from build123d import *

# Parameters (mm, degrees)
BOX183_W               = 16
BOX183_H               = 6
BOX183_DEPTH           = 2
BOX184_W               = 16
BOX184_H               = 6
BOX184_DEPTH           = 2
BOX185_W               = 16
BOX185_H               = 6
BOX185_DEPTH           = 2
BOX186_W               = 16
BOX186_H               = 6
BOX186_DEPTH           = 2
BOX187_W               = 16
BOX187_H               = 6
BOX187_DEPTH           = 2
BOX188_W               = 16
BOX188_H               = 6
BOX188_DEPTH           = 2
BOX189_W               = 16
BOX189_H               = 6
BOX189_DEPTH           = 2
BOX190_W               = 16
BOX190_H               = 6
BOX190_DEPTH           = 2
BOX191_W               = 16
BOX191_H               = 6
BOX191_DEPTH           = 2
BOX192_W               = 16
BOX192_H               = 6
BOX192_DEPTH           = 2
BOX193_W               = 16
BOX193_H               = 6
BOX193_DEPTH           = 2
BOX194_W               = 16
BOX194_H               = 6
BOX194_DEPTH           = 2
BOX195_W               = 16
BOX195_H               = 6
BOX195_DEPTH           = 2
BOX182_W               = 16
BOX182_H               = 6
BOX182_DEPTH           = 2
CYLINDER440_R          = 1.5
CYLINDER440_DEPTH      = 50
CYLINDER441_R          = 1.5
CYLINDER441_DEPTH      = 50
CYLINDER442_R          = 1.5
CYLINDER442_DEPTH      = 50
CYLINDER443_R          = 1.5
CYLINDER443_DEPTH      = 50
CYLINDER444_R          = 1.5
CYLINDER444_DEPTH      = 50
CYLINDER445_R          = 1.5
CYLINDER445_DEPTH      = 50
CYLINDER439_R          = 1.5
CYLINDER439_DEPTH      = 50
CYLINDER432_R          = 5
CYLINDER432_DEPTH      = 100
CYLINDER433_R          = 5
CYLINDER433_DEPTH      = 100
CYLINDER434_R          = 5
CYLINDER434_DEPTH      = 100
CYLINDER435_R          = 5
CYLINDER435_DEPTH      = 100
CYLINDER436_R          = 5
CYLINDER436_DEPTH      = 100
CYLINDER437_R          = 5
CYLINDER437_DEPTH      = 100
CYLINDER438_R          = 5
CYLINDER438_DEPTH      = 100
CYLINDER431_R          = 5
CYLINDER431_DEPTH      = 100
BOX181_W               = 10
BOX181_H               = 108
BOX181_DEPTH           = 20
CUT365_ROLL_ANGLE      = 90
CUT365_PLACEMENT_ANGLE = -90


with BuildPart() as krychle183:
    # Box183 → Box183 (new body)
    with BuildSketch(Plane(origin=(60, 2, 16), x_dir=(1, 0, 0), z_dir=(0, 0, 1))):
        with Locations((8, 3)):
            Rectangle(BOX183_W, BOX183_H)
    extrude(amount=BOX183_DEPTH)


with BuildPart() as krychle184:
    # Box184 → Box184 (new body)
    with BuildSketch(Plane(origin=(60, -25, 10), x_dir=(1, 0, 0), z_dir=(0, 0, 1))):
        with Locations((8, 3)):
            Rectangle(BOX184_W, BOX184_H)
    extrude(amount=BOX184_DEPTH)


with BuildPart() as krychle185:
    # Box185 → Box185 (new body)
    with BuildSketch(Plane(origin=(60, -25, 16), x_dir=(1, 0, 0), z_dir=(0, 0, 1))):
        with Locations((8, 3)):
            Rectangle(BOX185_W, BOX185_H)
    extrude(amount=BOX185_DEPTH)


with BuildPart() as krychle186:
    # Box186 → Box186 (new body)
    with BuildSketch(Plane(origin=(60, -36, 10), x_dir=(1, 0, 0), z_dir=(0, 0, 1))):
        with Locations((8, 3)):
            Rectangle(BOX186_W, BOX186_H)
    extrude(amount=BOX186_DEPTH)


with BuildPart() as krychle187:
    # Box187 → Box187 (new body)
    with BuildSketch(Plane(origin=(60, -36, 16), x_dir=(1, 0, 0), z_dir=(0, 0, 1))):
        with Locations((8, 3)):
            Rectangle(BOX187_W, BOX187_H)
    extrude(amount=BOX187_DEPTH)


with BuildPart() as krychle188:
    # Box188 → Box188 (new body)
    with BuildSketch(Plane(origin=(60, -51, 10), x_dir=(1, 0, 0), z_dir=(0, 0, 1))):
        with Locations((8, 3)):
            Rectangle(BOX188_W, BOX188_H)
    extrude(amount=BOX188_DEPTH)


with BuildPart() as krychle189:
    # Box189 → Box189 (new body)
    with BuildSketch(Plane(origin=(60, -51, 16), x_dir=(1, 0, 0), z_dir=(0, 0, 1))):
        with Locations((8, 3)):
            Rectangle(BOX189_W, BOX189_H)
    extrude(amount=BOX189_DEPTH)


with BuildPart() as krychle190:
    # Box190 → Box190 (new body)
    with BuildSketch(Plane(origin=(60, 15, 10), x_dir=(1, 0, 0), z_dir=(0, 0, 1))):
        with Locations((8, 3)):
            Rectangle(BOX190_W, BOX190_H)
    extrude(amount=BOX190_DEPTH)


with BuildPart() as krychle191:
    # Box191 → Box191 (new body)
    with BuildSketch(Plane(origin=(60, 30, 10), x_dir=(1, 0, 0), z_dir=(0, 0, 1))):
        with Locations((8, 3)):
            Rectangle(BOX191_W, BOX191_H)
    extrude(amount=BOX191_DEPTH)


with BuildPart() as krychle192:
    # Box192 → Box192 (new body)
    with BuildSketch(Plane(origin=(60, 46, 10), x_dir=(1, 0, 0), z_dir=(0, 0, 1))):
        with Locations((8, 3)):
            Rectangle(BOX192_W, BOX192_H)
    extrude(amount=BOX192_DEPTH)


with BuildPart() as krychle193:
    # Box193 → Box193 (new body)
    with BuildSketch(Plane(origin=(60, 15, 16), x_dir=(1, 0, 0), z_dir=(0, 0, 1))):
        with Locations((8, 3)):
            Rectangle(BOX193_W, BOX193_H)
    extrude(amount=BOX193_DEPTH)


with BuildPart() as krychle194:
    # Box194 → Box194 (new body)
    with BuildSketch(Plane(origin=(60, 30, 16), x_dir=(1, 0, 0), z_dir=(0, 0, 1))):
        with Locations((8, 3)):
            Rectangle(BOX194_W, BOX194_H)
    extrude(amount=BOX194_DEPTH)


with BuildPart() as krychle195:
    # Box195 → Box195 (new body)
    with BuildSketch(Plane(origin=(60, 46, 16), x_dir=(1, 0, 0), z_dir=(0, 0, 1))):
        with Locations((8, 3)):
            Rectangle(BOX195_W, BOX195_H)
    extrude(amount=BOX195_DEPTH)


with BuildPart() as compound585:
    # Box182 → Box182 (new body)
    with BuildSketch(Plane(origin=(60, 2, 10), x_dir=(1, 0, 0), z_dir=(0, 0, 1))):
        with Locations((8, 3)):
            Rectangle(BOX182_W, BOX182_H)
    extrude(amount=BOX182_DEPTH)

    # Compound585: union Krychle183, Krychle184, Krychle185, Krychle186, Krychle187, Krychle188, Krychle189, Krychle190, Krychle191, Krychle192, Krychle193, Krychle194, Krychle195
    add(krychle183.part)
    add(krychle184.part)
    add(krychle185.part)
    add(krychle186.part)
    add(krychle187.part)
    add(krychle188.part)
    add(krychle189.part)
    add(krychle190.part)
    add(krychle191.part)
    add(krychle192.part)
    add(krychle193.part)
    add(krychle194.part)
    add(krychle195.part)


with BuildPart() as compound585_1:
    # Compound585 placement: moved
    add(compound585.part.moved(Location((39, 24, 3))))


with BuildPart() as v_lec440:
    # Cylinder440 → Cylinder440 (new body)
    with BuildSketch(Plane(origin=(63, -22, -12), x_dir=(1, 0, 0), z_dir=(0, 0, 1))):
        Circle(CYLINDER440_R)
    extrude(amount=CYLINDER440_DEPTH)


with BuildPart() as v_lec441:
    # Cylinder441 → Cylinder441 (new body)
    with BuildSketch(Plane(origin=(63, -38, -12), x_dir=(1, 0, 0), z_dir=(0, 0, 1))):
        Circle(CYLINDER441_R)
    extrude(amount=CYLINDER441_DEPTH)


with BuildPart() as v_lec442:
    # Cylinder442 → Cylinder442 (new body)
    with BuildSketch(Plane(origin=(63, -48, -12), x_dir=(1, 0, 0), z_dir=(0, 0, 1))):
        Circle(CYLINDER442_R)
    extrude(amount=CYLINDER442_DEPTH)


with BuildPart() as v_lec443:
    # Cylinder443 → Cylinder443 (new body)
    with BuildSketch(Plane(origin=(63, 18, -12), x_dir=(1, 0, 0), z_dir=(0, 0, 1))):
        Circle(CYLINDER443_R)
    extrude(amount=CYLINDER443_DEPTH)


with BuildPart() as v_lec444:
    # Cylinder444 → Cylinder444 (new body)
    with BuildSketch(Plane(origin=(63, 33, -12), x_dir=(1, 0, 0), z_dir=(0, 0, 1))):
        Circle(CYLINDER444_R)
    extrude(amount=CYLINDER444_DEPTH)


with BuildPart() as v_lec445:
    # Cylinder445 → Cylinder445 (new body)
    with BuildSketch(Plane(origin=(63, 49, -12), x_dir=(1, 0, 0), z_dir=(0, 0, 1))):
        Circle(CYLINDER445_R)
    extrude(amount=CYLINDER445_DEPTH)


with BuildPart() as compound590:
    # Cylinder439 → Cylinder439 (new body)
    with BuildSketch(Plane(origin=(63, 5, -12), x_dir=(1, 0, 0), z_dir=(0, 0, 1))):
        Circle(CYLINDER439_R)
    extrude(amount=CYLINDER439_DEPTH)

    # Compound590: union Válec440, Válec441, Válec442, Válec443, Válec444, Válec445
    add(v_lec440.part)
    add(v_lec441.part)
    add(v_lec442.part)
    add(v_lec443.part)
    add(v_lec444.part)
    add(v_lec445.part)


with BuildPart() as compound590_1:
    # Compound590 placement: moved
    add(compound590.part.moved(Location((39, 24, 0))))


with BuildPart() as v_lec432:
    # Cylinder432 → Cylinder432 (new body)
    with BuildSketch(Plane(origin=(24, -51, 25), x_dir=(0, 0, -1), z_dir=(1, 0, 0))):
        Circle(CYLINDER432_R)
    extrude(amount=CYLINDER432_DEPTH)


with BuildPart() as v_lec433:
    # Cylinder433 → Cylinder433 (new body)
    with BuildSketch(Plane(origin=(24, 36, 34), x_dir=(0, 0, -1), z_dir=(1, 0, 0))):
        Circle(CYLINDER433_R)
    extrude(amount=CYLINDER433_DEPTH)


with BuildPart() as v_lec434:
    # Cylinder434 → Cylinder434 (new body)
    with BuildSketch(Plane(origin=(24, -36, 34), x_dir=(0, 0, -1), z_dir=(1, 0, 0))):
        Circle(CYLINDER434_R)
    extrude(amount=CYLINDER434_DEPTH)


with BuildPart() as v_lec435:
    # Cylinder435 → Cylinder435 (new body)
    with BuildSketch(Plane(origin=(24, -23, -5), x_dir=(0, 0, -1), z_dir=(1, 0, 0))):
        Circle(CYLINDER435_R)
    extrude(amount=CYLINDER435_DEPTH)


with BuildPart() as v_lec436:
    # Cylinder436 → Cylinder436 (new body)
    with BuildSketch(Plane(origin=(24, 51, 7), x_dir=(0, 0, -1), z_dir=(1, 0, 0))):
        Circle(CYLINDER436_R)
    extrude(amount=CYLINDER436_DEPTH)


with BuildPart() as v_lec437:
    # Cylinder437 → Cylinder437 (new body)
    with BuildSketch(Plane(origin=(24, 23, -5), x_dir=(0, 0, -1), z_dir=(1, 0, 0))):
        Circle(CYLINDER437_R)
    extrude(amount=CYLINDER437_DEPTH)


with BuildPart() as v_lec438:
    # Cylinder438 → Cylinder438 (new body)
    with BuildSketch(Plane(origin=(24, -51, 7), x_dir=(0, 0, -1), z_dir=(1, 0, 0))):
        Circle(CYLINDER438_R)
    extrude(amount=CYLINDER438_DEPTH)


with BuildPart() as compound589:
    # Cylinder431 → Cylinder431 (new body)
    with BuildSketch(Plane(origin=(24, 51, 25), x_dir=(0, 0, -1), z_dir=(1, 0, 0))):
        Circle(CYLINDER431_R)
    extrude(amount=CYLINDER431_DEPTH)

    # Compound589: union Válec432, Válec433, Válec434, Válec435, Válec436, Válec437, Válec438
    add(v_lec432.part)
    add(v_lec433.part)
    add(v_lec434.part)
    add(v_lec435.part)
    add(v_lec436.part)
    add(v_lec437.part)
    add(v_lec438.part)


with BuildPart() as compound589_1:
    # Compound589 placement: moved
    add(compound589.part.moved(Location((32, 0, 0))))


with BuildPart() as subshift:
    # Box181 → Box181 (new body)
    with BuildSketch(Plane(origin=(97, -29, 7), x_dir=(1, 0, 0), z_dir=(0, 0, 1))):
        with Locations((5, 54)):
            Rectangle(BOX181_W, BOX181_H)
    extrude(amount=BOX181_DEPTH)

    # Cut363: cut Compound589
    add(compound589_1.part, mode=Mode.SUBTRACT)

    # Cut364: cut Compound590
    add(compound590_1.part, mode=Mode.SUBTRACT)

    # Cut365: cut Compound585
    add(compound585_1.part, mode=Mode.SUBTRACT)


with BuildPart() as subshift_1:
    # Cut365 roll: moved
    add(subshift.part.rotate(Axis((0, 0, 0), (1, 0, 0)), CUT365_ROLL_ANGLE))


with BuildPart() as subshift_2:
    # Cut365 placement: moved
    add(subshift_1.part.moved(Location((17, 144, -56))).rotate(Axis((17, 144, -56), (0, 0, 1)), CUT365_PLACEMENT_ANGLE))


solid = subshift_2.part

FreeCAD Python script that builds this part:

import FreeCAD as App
import Part
import Sketcher
Q = App.Units.Quantity


def add_polygon(sketch, points):
    """Adds a closed chain of lines whose ends are joined by coincident constraints."""
    first, n = sketch.GeometryCount, len(points)
    for a, b in zip(points, points[1:] + points[:1]):
        sketch.addGeometry(Part.LineSegment(App.Vector(*a, 0), App.Vector(*b, 0)), False)
    for i in range(n):
        sketch.addConstraint(Sketcher.Constraint("Coincident", first + i, 2, first + (i + 1) % n, 1))

doc = App.newDocument("Part")
body = doc.addObject("PartDesign::Body", "Body")

# Sketch on XY plane
sketch1 = doc.addObject("Sketcher::SketchObject", "Sketch")
body.addObject(sketch1)
sketch1.AttachmentSupport = (doc.XY_Plane, [""])
sketch1.MapMode = "FlatFace"
sketch1.AttachmentOffset = App.Placement(App.Vector(0, 0, 16), App.Rotation())
add_polygon(sketch1, [(60, 8), (60, 2), (76, 2), (76, 8)])  # lines 0-3
sketch1.addConstraint([
    Sketcher.Constraint("Vertical", 0),
    Sketcher.Constraint("Horizontal", 1),
    Sketcher.Constraint("Vertical", 2),
    Sketcher.Constraint("Horizontal", 3),
    Sketcher.Constraint("DistanceX", 1, 1, 1, 2, Q("16 mm")),
    Sketcher.Constraint("DistanceY", 0, 2, 0, 1, Q("6 mm")),
    Sketcher.Constraint("DistanceX", -1, 1, 0, 2, Q("60 mm")),
    Sketcher.Constraint("DistanceY", -1, 1, 0, 2, Q("2 mm")),
])
pad1 = doc.addObject("PartDesign::Pad", "Pad")
body.addObject(pad1)
pad1.Profile = sketch1
pad1.Length = 2
body2 = doc.addObject("PartDesign::Body", "Body001")

# Sketch on XY plane
sketch2 = doc.addObject("Sketcher::SketchObject", "Sketch001")
body2.addObject(sketch2)
sketch2.AttachmentSupport = (doc.getObject("XY_Plane001"), [""])
sketch2.MapMode = "FlatFace"
sketch2.AttachmentOffset = App.Placement(App.Vector(0, 0, 10), App.Rotation())
add_polygon(sketch2, [(60, -19), (60, -25), (76, -25), (76, -19)])  # lines 0-3
sketch2.addConstraint([
    Sketcher.Constraint("Vertical", 0),
    Sketcher.Constraint("Horizontal", 1),
    Sketcher.Constraint("Vertical", 2),
    Sketcher.Constraint("Horizontal", 3),
    Sketcher.Constraint("DistanceX", 1, 1, 1, 2, Q("16 mm")),
    Sketcher.Constraint("DistanceY", 0, 2, 0, 1, Q("6 mm")),
    Sketcher.Constraint("DistanceX", -1, 1, 0, 2, Q("60 mm")),
    Sketcher.Constraint("DistanceY", 0, 2, -1, 1, Q("25 mm")),
])
pad2 = doc.addObject("PartDesign::Pad", "Pad001")
body2.addObject(pad2)
pad2.Profile = sketch2
pad2.Length = 2
body3 = doc.addObject("PartDesign::Body", "Body002")

# Sketch on XY plane
sketch3 = doc.addObject("Sketcher::SketchObject", "Sketch002")
body3.addObject(sketch3)
sketch3.AttachmentSupport = (doc.getObject("XY_Plane002"), [""])
sketch3.MapMode = "FlatFace"
sketch3.AttachmentOffset = App.Placement(App.Vector(0, 0, 16), App.Rotation())
add_polygon(sketch3, [(60, -19), (60, -25), (76, -25), (76, -19)])  # lines 0-3
sketch3.addConstraint([
    Sketcher.Constraint("Vertical", 0),
    Sketcher.Constraint("Horizontal", 1),
    Sketcher.Constraint("Vertical", 2),
    Sketcher.Constraint("Horizontal", 3),
    Sketcher.Constraint("DistanceX", 1, 1, 1, 2, Q("16 mm")),
    Sketcher.Constraint("DistanceY", 0, 2, 0, 1, Q("6 mm")),
    Sketcher.Constraint("DistanceX", -1, 1, 0, 2, Q("60 mm")),
    Sketcher.Constraint("DistanceY", 0, 2, -1, 1, Q("25 mm")),
])
pad3 = doc.addObject("PartDesign::Pad", "Pad002")
body3.addObject(pad3)
pad3.Profile = sketch3
pad3.Length = 2
body4 = doc.addObject("PartDesign::Body", "Body003")

# Sketch on XY plane
sketch4 = doc.addObject("Sketcher::SketchObject", "Sketch003")
body4.addObject(sketch4)
sketch4.AttachmentSupport = (doc.getObject("XY_Plane003"), [""])
sketch4.MapMode = "FlatFace"
sketch4.AttachmentOffset = App.Placement(App.Vector(0, 0, 10), App.Rotation())
add_polygon(sketch4, [(60, -30), (60, -36), (76, -36), (76, -30)])  # lines 0-3
sketch4.addConstraint([
    Sketcher.Constraint("Vertical", 0),
    Sketcher.Constraint("Horizontal", 1),
    Sketcher.Constraint("Vertical", 2),
    Sketcher.Constraint("Horizontal", 3),
    Sketcher.Constraint("DistanceX", 1, 1, 1, 2, Q("16 mm")),
    Sketcher.Constraint("DistanceY", 0, 2, 0, 1, Q("6 mm")),
    Sketcher.Constraint("DistanceX", -1, 1, 0, 2, Q("60 mm")),
    Sketcher.Constraint("DistanceY", 0, 2, -1, 1, Q("36 mm")),
])
pad4 = doc.addObject("PartDesign::Pad", "Pad003")
body4.addObject(pad4)
pad4.Profile = sketch4
pad4.Length = 2
body5 = doc.addObject("PartDesign::Body", "Body004")

# Sketch on XY plane
sketch5 = doc.addObject("Sketcher::SketchObject", "Sketch004")
body5.addObject(sketch5)
sketch5.AttachmentSupport = (doc.getObject("XY_Plane004"), [""])
sketch5.MapMode = "FlatFace"
sketch5.AttachmentOffset = App.Placement(App.Vector(0, 0, 16), App.Rotation())
add_polygon(sketch5, [(60, -30), (60, -36), (76, -36), (76, -30)])  # lines 0-3
sketch5.addConstraint([
    Sketcher.Constraint("Vertical", 0),
    Sketcher.Constraint("Horizontal", 1),
    Sketcher.Constraint("Vertical", 2),
    Sketcher.Constraint("Horizontal", 3),
    Sketcher.Constraint("DistanceX", 1, 1, 1, 2, Q("16 mm")),
    Sketcher.Constraint("DistanceY", 0, 2, 0, 1, Q("6 mm")),
    Sketcher.Constraint("DistanceX", -1, 1, 0, 2, Q("60 mm")),
    Sketcher.Constraint("DistanceY", 0, 2, -1, 1, Q("36 mm")),
])
pad5 = doc.addObject("PartDesign::Pad", "Pad004")
body5.addObject(pad5)
pad5.Profile = sketch5
pad5.Length = 2
body6 = doc.addObject("PartDesign::Body", "Body005")

# Sketch on XY plane
sketch6 = doc.addObject("Sketcher::SketchObject", "Sketch005")
body6.addObject(sketch6)
sketch6.AttachmentSupport = (doc.getObject("XY_Plane005"), [""])
sketch6.MapMode = "FlatFace"
sketch6.AttachmentOffset = App.Placement(App.Vector(0, 0, 10), App.Rotation())
add_polygon(sketch6, [(60, -45), (60, -51), (76, -51), (76, -45)])  # lines 0-3
sketch6.addConstraint([
    Sketcher.Constraint("Vertical", 0),
    Sketcher.Constraint("Horizontal", 1),
    Sketcher.Constraint("Vertical", 2),
    Sketcher.Constraint("Horizontal", 3),
    Sketcher.Constraint("DistanceX", 1, 1, 1, 2, Q("16 mm")),
    Sketcher.Constraint("DistanceY", 0, 2, 0, 1, Q("6 mm")),
    Sketcher.Constraint("DistanceX", -1, 1, 0, 2, Q("60 mm")),
    Sketcher.Constraint("DistanceY", 0, 2, -1, 1, Q("51 mm")),
])
pad6 = doc.addObject("PartDesign::Pad", "Pad005")
body6.addObject(pad6)
pad6.Profile = sketch6
pad6.Length = 2
body7 = doc.addObject("PartDesign::Body", "Body006")

# Sketch on XY plane
sketch7 = doc.addObject("Sketcher::SketchObject", "Sketch006")
body7.addObject(sketch7)
sketch7.AttachmentSupport = (doc.getObject("XY_Plane006"), [""])
sketch7.MapMode = "FlatFace"
sketch7.AttachmentOffset = App.Placement(App.Vector(0, 0, 16), App.Rotation())
add_polygon(sketch7, [(60, -45), (60, -51), (76, -51), (76, -45)])  # lines 0-3
sketch7.addConstraint([
    Sketcher.Constraint("Vertical", 0),
    Sketcher.Constraint("Horizontal", 1),
    Sketcher.Constraint("Vertical", 2),
    Sketcher.Constraint("Horizontal", 3),
    Sketcher.Constraint("DistanceX", 1, 1, 1, 2, Q("16 mm")),
    Sketcher.Constraint("DistanceY", 0, 2, 0, 1, Q("6 mm")),
    Sketcher.Constraint("DistanceX", -1, 1, 0, 2, Q("60 mm")),
    Sketcher.Constraint("DistanceY", 0, 2, -1, 1, Q("51 mm")),
])
pad7 = doc.addObject("PartDesign::Pad", "Pad006")
body7.addObject(pad7)
pad7.Profile = sketch7
pad7.Length = 2
body8 = doc.addObject("PartDesign::Body", "Body007")

# Sketch on XY plane
sketch8 = doc.addObject("Sketcher::SketchObject", "Sketch007")
body8.addObject(sketch8)
sketch8.AttachmentSupport = (doc.getObject("XY_Plane007"), [""])
sketch8.MapMode = "FlatFace"
sketch8.AttachmentOffset = App.Placement(App.Vector(0, 0, 10), App.Rotation())
add_polygon(sketch8, [(60, 21), (60, 15), (76, 15), (76, 21)])  # lines 0-3
sketch8.addConstraint([
    Sketcher.Constraint("Vertical", 0),
    Sketcher.Constraint("Horizontal", 1),
    Sketcher.Constraint("Vertical", 2),
    Sketcher.Constraint("Horizontal", 3),
    Sketcher.Constraint("DistanceX", 1, 1, 1, 2, Q("16 mm")),
    Sketcher.Constraint("DistanceY", 0, 2, 0, 1, Q("6 mm")),
    Sketcher.Constraint("DistanceX", -1, 1, 0, 2, Q("60 mm")),
    Sketcher.Constraint("DistanceY", -1, 1, 0, 2, Q("15 mm")),
])
pad8 = doc.addObject("PartDesign::Pad", "Pad007")
body8.addObject(pad8)
pad8.Profile = sketch8
pad8.Length = 2
body9 = doc.addObject("PartDesign::Body", "Body008")

# Sketch on XY plane
sketch9 = doc.addObject("Sketcher::SketchObject", "Sketch008")
body9.addObject(sketch9)
sketch9.AttachmentSupport = (doc.getObject("XY_Plane008"), [""])
sketch9.MapMode = "FlatFace"
sketch9.AttachmentOffset = App.Placement(App.Vector(0, 0, 10), App.Rotation())
add_polygon(sketch9, [(60, 36), (60, 30), (76, 30), (76, 36)])  # lines 0-3
sketch9.addConstraint([
    Sketcher.Constraint("Vertical", 0),
    Sketcher.Constraint("Horizontal", 1),
    Sketcher.Constraint("Vertical", 2),
    Sketcher.Constraint("Horizontal", 3),
    Sketcher.Constraint("DistanceX", 1, 1, 1, 2, Q("16 mm")),
    Sketcher.Constraint("DistanceY", 0, 2, 0, 1, Q("6 mm")),
    Sketcher.Constraint("DistanceX", -1, 1, 0, 2, Q("60 mm")),
    Sketcher.Constraint("DistanceY", -1, 1, 0, 2, Q("30 mm")),
])
pad9 = doc.addObject("PartDesign::Pad", "Pad008")
body9.addObject(pad9)
pad9.Profile = sketch9
pad9.Length = 2
body10 = doc.addObject("PartDesign::Body", "Body009")

# Sketch on XY plane
sketch10 = doc.addObject("Sketcher::SketchObject", "Sketch009")
body10.addObject(sketch10)
sketch10.AttachmentSupport = (doc.getObject("XY_Plane009"), [""])
sketch10.MapMode = "FlatFace"
sketch10.AttachmentOffset = App.Placement(App.Vector(0, 0, 10), App.Rotation())
add_polygon(sketch10, [(60, 52), (60, 46), (76, 46), (76, 52)])  # lines 0-3
sketch10.addConstraint([
    Sketcher.Constraint("Vertical", 0),
    Sketcher.Constraint("Horizontal", 1),
    Sketcher.Constraint("Vertical", 2),
    Sketcher.Constraint("Horizontal", 3),
    Sketcher.Constraint("DistanceX", 1, 1, 1, 2, Q("16 mm")),
    Sketcher.Constraint("DistanceY", 0, 2, 0, 1, Q("6 mm")),
    Sketcher.Constraint("DistanceX", -1, 1, 0, 2, Q("60 mm")),
    Sketcher.Constraint("DistanceY", -1, 1, 0, 2, Q("46 mm")),
])
pad10 = doc.addObject("PartDesign::Pad", "Pad009")
body10.addObject(pad10)
pad10.Profile = sketch10
pad10.Length = 2
body11 = doc.addObject("PartDesign::Body", "Body010")

# Sketch on XY plane
sketch11 = doc.addObject("Sketcher::SketchObject", "Sketch010")
body11.addObject(sketch11)
sketch11.AttachmentSupport = (doc.getObject("XY_Plane010"), [""])
sketch11.MapMode = "FlatFace"
sketch11.AttachmentOffset = App.Placement(App.Vector(0, 0, 16), App.Rotation())
add_polygon(sketch11, [(60, 21), (60, 15), (76, 15), (76, 21)])  # lines 0-3
sketch11.addConstraint([
    Sketcher.Constraint("Vertical", 0),
    Sketcher.Constraint("Horizontal", 1),
    Sketcher.Constraint("Vertical", 2),
    Sketcher.Constraint("Horizontal", 3),
    Sketcher.Constraint("DistanceX", 1, 1, 1, 2, Q("16 mm")),
    Sketcher.Constraint("DistanceY", 0, 2, 0, 1, Q("6 mm")),
    Sketcher.Constraint("DistanceX", -1, 1, 0, 2, Q("60 mm")),
    Sketcher.Constraint("DistanceY", -1, 1, 0, 2, Q("15 mm")),
])
pad11 = doc.addObject("PartDesign::Pad", "Pad010")
body11.addObject(pad11)
pad11.Profile = sketch11
pad11.Length = 2
body12 = doc.addObject("PartDesign::Body", "Body011")

# Sketch on XY plane
sketch12 = doc.addObject("Sketcher::SketchObject", "Sketch011")
body12.addObject(sketch12)
sketch12.AttachmentSupport = (doc.getObject("XY_Plane011"), [""])
sketch12.MapMode = "FlatFace"
sketch12.AttachmentOffset = App.Placement(App.Vector(0, 0, 16), App.Rotation())
add_polygon(sketch12, [(60, 36), (60, 30), (76, 30), (76, 36)])  # lines 0-3
sketch12.addConstraint([
    Sketcher.Constraint("Vertical", 0),
    Sketcher.Constraint("Horizontal", 1),
    Sketcher.Constraint("Vertical", 2),
    Sketcher.Constraint("Horizontal", 3),
    Sketcher.Constraint("DistanceX", 1, 1, 1, 2, Q("16 mm")),
    Sketcher.Constraint("DistanceY", 0, 2, 0, 1, Q("6 mm")),
    Sketcher.Constraint("DistanceX", -1, 1, 0, 2, Q("60 mm")),
    Sketcher.Constraint("DistanceY", -1, 1, 0, 2, Q("30 mm")),
])
pad12 = doc.addObject("PartDesign::Pad", "Pad011")
body12.addObject(pad12)
pad12.Profile = sketch12
pad12.Length = 2
body13 = doc.addObject("PartDesign::Body", "Body012")

# Sketch on XY plane
sketch13 = doc.addObject("Sketcher::SketchObject", "Sketch012")
body13.addObject(sketch13)
sketch13.AttachmentSupport = (doc.getObject("XY_Plane012"), [""])
sketch13.MapMode = "FlatFace"
sketch13.AttachmentOffset = App.Placement(App.Vector(0, 0, 16), App.Rotation())
add_polygon(sketch13, [(60, 52), (60, 46), (76, 46), (76, 52)])  # lines 0-3
sketch13.addConstraint([
    Sketcher.Constraint("Vertical", 0),
    Sketcher.Constraint("Horizontal", 1),
    Sketcher.Constraint("Vertical", 2),
    Sketcher.Constraint("Horizontal", 3),
    Sketcher.Constraint("DistanceX", 1, 1, 1, 2, Q("16 mm")),
    Sketcher.Constraint("DistanceY", 0, 2, 0, 1, Q("6 mm")),
    Sketcher.Constraint("DistanceX", -1, 1, 0, 2, Q("60 mm")),
    Sketcher.Constraint("DistanceY", -1, 1, 0, 2, Q("46 mm")),
])
pad13 = doc.addObject("PartDesign::Pad", "Pad012")
body13.addObject(pad13)
pad13.Profile = sketch13
pad13.Length = 2
body14 = doc.addObject("PartDesign::Body", "Body013")
body14.AllowCompound = True

# Sketch on XY plane
sketch14 = doc.addObject("Sketcher::SketchObject", "Sketch013")
body14.addObject(sketch14)
sketch14.AttachmentSupport = (doc.getObject("XY_Plane013"), [""])
sketch14.MapMode = "FlatFace"
sketch14.AttachmentOffset = App.Placement(App.Vector(0, 0, 10), App.Rotation())
add_polygon(sketch14, [(60, 8), (60, 2), (76, 2), (76, 8)])  # lines 0-3
sketch14.addConstraint([
    Sketcher.Constraint("Vertical", 0),
    Sketcher.Constraint("Horizontal", 1),
    Sketcher.Constraint("Vertical", 2),
    Sketcher.Constraint("Horizontal", 3),
    Sketcher.Constraint("DistanceX", 1, 1, 1, 2, Q("16 mm")),
    Sketcher.Constraint("DistanceY", 0, 2, 0, 1, Q("6 mm")),
    Sketcher.Constraint("DistanceX", -1, 1, 0, 2, Q("60 mm")),
    Sketcher.Constraint("DistanceY", -1, 1, 0, 2, Q("2 mm")),
])
pad14 = doc.addObject("PartDesign::Pad", "Pad013")
body14.addObject(pad14)
pad14.Profile = sketch14
pad14.Length = 2
doc.recompute()

boolean = doc.addObject("PartDesign::Boolean", "Boolean")
body14.addObject(boolean)
boolean.Type = "Fuse"
boolean.addObjects([body])
doc.recompute()

boolean2 = doc.addObject("PartDesign::Boolean", "Boolean001")
body14.addObject(boolean2)
boolean2.Type = "Fuse"
boolean2.addObjects([body2])
doc.recompute()

boolean3 = doc.addObject("PartDesign::Boolean", "Boolean002")
body14.addObject(boolean3)
boolean3.Type = "Fuse"
boolean3.addObjects([body3])
doc.recompute()

boolean4 = doc.addObject("PartDesign::Boolean", "Boolean003")
body14.addObject(boolean4)
boolean4.Type = "Fuse"
boolean4.addObjects([body4])
doc.recompute()

boolean5 = doc.addObject("PartDesign::Boolean", "Boolean004")
body14.addObject(boolean5)
boolean5.Type = "Fuse"
boolean5.addObjects([body5])
doc.recompute()

boolean6 = doc.addObject("PartDesign::Boolean", "Boolean005")
body14.addObject(boolean6)
boolean6.Type = "Fuse"
boolean6.addObjects([body6])
doc.recompute()

boolean7 = doc.addObject("PartDesign::Boolean", "Boolean006")
body14.addObject(boolean7)
boolean7.Type = "Fuse"
boolean7.addObjects([body7])
doc.recompute()

boolean8 = doc.addObject("PartDesign::Boolean", "Boolean007")
body14.addObject(boolean8)
boolean8.Type = "Fuse"
boolean8.addObjects([body8])
doc.recompute()

boolean9 = doc.addObject("PartDesign::Boolean", "Boolean008")
body14.addObject(boolean9)
boolean9.Type = "Fuse"
boolean9.addObjects([body9])
doc.recompute()

boolean10 = doc.addObject("PartDesign::Boolean", "Boolean009")
body14.addObject(boolean10)
boolean10.Type = "Fuse"
boolean10.addObjects([body10])
doc.recompute()

boolean11 = doc.addObject("PartDesign::Boolean", "Boolean010")
body14.addObject(boolean11)
boolean11.Type = "Fuse"
boolean11.addObjects([body11])
doc.recompute()

boolean12 = doc.addObject("PartDesign::Boolean", "Boolean011")
body14.addObject(boolean12)
boolean12.Type = "Fuse"
boolean12.addObjects([body12])
doc.recompute()

boolean13 = doc.addObject("PartDesign::Boolean", "Boolean012")
body14.addObject(boolean13)
boolean13.Type = "Fuse"
boolean13.addObjects([body13])
body15 = doc.addObject("PartDesign::Body", "Body014")
body15.AllowCompound = True
doc.recompute()

body14.Placement = App.Placement(App.Vector(39, 24, 3), App.Rotation(App.Vector(0, 0, 1), 0))
boolean14 = doc.addObject("PartDesign::Boolean", "Boolean013")
body15.addObject(boolean14)
boolean14.Type = "Fuse"
boolean14.addObjects([body14])
body16 = doc.addObject("PartDesign::Body", "Body015")

# Sketch on XY plane
sketch15 = doc.addObject("Sketcher::SketchObject", "Sketch014")
body16.addObject(sketch15)
sketch15.AttachmentSupport = (doc.getObject("XY_Plane015"), [""])
sketch15.MapMode = "FlatFace"
sketch15.AttachmentOffset = App.Placement(App.Vector(0, 0, -12), App.Rotation())
sketch15.addGeometry(Part.Circle(App.Vector(63, -22, 0), App.Vector(0, 0, 1), 1.5), False)
sketch15.addConstraint([
    Sketcher.Constraint("Diameter", 0, Q("3 mm")),
    Sketcher.Constraint("DistanceX", -1, 1, 0, 3, Q("63 mm")),
    Sketcher.Constraint("DistanceY", 0, 3, -1, 1, Q("22 mm")),
])
pad15 = doc.addObject("PartDesign::Pad", "Pad014")
body16.addObject(pad15)
pad15.Profile = sketch15
pad15.Length = 50
body17 = doc.addObject("PartDesign::Body", "Body016")

# Sketch on XY plane
sketch16 = doc.addObject("Sketcher::SketchObject", "Sketch015")
body17.addObject(sketch16)
sketch16.AttachmentSupport = (doc.getObject("XY_Plane016"), [""])
sketch16.MapMode = "FlatFace"
sketch16.AttachmentOffset = App.Placement(App.Vector(0, 0, -12), App.Rotation())
sketch16.addGeometry(Part.Circle(App.Vector(63, -38, 0), App.Vector(0, 0, 1), 1.5), False)
sketch16.addConstraint([
    Sketcher.Constraint("Diameter", 0, Q("3 mm")),
    Sketcher.Constraint("DistanceX", -1, 1, 0, 3, Q("63 mm")),
    Sketcher.Constraint("DistanceY", 0, 3, -1, 1, Q("38 mm")),
])
pad16 = doc.addObject("PartDesign::Pad", "Pad015")
body17.addObject(pad16)
pad16.Profile = sketch16
pad16.Length = 50
body18 = doc.addObject("PartDesign::Body", "Body017")

# Sketch on XY plane
sketch17 = doc.addObject("Sketcher::SketchObject", "Sketch016")
body18.addObject(sketch17)
sketch17.AttachmentSupport = (doc.getObject("XY_Plane017"), [""])
sketch17.MapMode = "FlatFace"
sketch17.AttachmentOffset = App.Placement(App.Vector(0, 0, -12), App.Rotation())
sketch17.addGeometry(Part.Circle(App.Vector(63, -48, 0), App.Vector(0, 0, 1), 1.5), False)
sketch17.addConstraint([
    Sketcher.Constraint("Diameter", 0, Q("3 mm")),
    Sketcher.Constraint("DistanceX", -1, 1, 0, 3, Q("63 mm")),
    Sketcher.Constraint("DistanceY", 0, 3, -1, 1, Q("48 mm")),
])
pad17 = doc.addObject("PartDesign::Pad", "Pad016")
body18.addObject(pad17)
pad17.Profile = sketch17
pad17.Length = 50
body19 = doc.addObject("PartDesign::Body", "Body018")

# Sketch on XY plane
sketch18 = doc.addObject("Sketcher::SketchObject", "Sketch017")
body19.addObject(sketch18)
sketch18.AttachmentSupport = (doc.getObject("XY_Plane018"), [""])
sketch18.MapMode = "FlatFace"
sketch18.AttachmentOffset = App.Placement(App.Vector(0, 0, -12), App.Rotation())
sketch18.addGeometry(Part.Circle(App.Vector(63, 18, 0), App.Vector(0, 0, 1), 1.5), False)
sketch18.addConstraint([
    Sketcher.Constraint("Diameter", 0, Q("3 mm")),
    Sketcher.Constraint("DistanceX", -1, 1, 0, 3, Q("63 mm")),
    Sketcher.Constraint("DistanceY", -1, 1, 0, 3, Q("18 mm")),
])
pad18 = doc.addObject("PartDesign::Pad", "Pad017")
body19.addObject(pad18)
pad18.Profile = sketch18
pad18.Length = 50
body20 = doc.addObject("PartDesign::Body", "Body019")

# Sketch on XY plane
sketch19 = doc.addObject("Sketcher::SketchObject", "Sketch018")
body20.addObject(sketch19)
sketch19.AttachmentSupport = (doc.getObject("XY_Plane019"), [""])
sketch19.MapMode = "FlatFace"
sketch19.AttachmentOffset = App.Placement(App.Vector(0, 0, -12), App.Rotation())
sketch19.addGeometry(Part.Circle(App.Vector(63, 33, 0), App.Vector(0, 0, 1), 1.5), False)
sketch19.addConstraint([
    Sketcher.Constraint("Diameter", 0, Q("3 mm")),
    Sketcher.Constraint("DistanceX", -1, 1, 0, 3, Q("63 mm")),
    Sketcher.Constraint("DistanceY", -1, 1, 0, 3, Q("33 mm")),
])
pad19 = doc.addObject("PartDesign::Pad", "Pad018")
body20.addObject(pad19)
pad19.Profile = sketch19
pad19.Length = 50
body21 = doc.addObject("PartDesign::Body", "Body020")

# Sketch on XY plane
sketch20 = doc.addObject("Sketcher::SketchObject", "Sketch019")
body21.addObject(sketch20)
sketch20.AttachmentSupport = (doc.getObject("XY_Plane020"), [""])
sketch20.MapMode = "FlatFace"
sketch20.AttachmentOffset = App.Placement(App.Vector(0, 0, -12), App.Rotation())
sketch20.addGeometry(Part.Circle(App.Vector(63, 49, 0), App.Vector(0, 0, 1), 1.5), False)
sketch20.addConstraint([
    Sketcher.Constraint("Diameter", 0, Q("3 mm")),
    Sketcher.Constraint("DistanceX", -1, 1, 0, 3, Q("63 mm")),
    Sketcher.Constraint("DistanceY", -1, 1, 0, 3, Q("49 mm")),
])
pad20 = doc.addObject("PartDesign::Pad", "Pad019")
body21.addObject(pad20)
pad20.Profile = sketch20
pad20.Length = 50
body22 = doc.addObject("PartDesign::Body", "Body021")
body22.AllowCompound = True

# Sketch on XY plane
sketch21 = doc.addObject("Sketcher::SketchObject", "Sketch020")
body22.addObject(sketch21)
sketch21.AttachmentSupport = (doc.getObject("XY_Plane021"), [""])
sketch21.MapMode = "FlatFace"
sketch21.AttachmentOffset = App.Placement(App.Vector(0, 0, -12), App.Rotation())
sketch21.addGeometry(Part.Circle(App.Vector(63, 5, 0), App.Vector(0, 0, 1), 1.5), False)
sketch21.addConstraint([
    Sketcher.Constraint("Diameter", 0, Q("3 mm")),
    Sketcher.Constraint("DistanceX", -1, 1, 0, 3, Q("63 mm")),
    Sketcher.Constraint("DistanceY", -1, 1, 0, 3, Q("5 mm")),
])
pad21 = doc.addObject("PartDesign::Pad", "Pad020")
body22.addObject(pad21)
pad21.Profile = sketch21
pad21.Length = 50
doc.recompute()

boolean15 = doc.addObject("PartDesign::Boolean", "Boolean014")
body22.addObject(boolean15)
boolean15.Type = "Fuse"
boolean15.addObjects([body16])
doc.recompute()

boolean16 = doc.addObject("PartDesign::Boolean", "Boolean015")
body22.addObject(boolean16)
boolean16.Type = "Fuse"
boolean16.addObjects([body17])
doc.recompute()

boolean17 = doc.addObject("PartDesign::Boolean", "Boolean016")
body22.addObject(boolean17)
boolean17.Type = "Fuse"
boolean17.addObjects([body18])
doc.recompute()

boolean18 = doc.addObject("PartDesign::Boolean", "Boolean017")
body22.addObject(boolean18)
boolean18.Type = "Fuse"
boolean18.addObjects([body19])
doc.recompute()

boolean19 = doc.addObject("PartDesign::Boolean", "Boolean018")
body22.addObject(boolean19)
boolean19.Type = "Fuse"
boolean19.addObjects([body20])
doc.recompute()

boolean20 = doc.addObject("PartDesign::Boolean", "Boolean019")
body22.addObject(boolean20)
boolean20.Type = "Fuse"
boolean20.addObjects([body21])
body23 = doc.addObject("PartDesign::Body", "Body022")
body23.AllowCompound = True
doc.recompute()

body22.Placement = App.Placement(App.Vector(39, 24, 0), App.Rotation(App.Vector(0, 0, 1), 0))
boolean21 = doc.addObject("PartDesign::Boolean", "Boolean020")
body23.addObject(boolean21)
boolean21.Type = "Fuse"
boolean21.addObjects([body22])
body24 = doc.addObject("PartDesign::Body", "Body023")

# Sketch on YZ plane
sketch22 = doc.addObject("Sketcher::SketchObject", "Sketch021")
body24.addObject(sketch22)
sketch22.AttachmentSupport = (doc.getObject("YZ_Plane023"), [""])
sketch22.MapMode = "FlatFace"
sketch22.AttachmentOffset = App.Placement(App.Vector(0, 0, 24), App.Rotation())
sketch22.addGeometry(Part.Circle(App.Vector(-51, 25, 0), App.Vector(0, 0, 1), 5), False)
sketch22.addConstraint([
    Sketcher.Constraint("Diameter", 0, Q("10 mm")),
    Sketcher.Constraint("DistanceX", 0, 3, -1, 1, Q("51 mm")),
    Sketcher.Constraint("DistanceY", -1, 1, 0, 3, Q("25 mm")),
])
pad22 = doc.addObject("PartDesign::Pad", "Pad021")
body24.addObject(pad22)
pad22.Profile = sketch22
pad22.Length = 100
body25 = doc.addObject("PartDesign::Body", "Body024")

# Sketch on YZ plane
sketch23 = doc.addObject("Sketcher::SketchObject", "Sketch022")
body25.addObject(sketch23)
sketch23.AttachmentSupport = (doc.getObject("YZ_Plane024"), [""])
sketch23.MapMode = "FlatFace"
sketch23.AttachmentOffset = App.Placement(App.Vector(0, 0, 24), App.Rotation())
sketch23.addGeometry(Part.Circle(App.Vector(36, 34, 0), App.Vector(0, 0, 1), 5), False)
sketch23.addConstraint([
    Sketcher.Constraint("Diameter", 0, Q("10 mm")),
    Sketcher.Constraint("DistanceX", -1, 1, 0, 3, Q("36 mm")),
    Sketcher.Constraint("DistanceY", -1, 1, 0, 3, Q("34 mm")),
])
pad23 = doc.addObject("PartDesign::Pad", "Pad022")
body25.addObject(pad23)
pad23.Profile = sketch23
pad23.Length = 100
body26 = doc.addObject("PartDesign::Body", "Body025")

# Sketch on YZ plane
sketch24 = doc.addObject("Sketcher::SketchObject", "Sketch023")
body26.addObject(sketch24)
sketch24.AttachmentSupport = (doc.getObject("YZ_Plane025"), [""])
sketch24.MapMode = "FlatFace"
sketch24.AttachmentOffset = App.Placement(App.Vector(0, 0, 24), App.Rotation())
sketch24.addGeometry(Part.Circle(App.Vector(-36, 34, 0), App.Vector(0, 0, 1), 5), False)
sketch24.addConstraint([
    Sketcher.Constraint("Diameter", 0, Q("10 mm")),
    Sketcher.Constraint("DistanceX", 0, 3, -1, 1, Q("36 mm")),
    Sketcher.Constraint("DistanceY", -1, 1, 0, 3, Q("34 mm")),
])
pad24 = doc.addObject("PartDesign::Pad", "Pad023")
body26.addObject(pad24)
pad24.Profile = sketch24
pad24.Length = 100
body27 = doc.addObject("PartDesign::Body", "Body026")

# Sketch on YZ plane
sketch25 = doc.addObject("Sketcher::SketchObject", "Sketch024")
body27.addObject(sketch25)
sketch25.AttachmentSupport = (doc.getObject("YZ_Plane026"), [""])
sketch25.MapMode = "FlatFace"
sketch25.AttachmentOffset = App.Placement(App.Vector(0, 0, 24), App.Rotation())
sketch25.addGeometry(Part.Circle(App.Vector(-23, -5, 0), App.Vector(0, 0, 1), 5), False)
sketch25.addConstraint([
    Sketcher.Constraint("Diameter", 0, Q("10 mm")),
    Sketcher.Constraint("DistanceX", 0, 3, -1, 1, Q("23 mm")),
    Sketcher.Constraint("DistanceY", 0, 3, -1, 1, Q("5 mm")),
])
pad25 = doc.addObject("PartDesign::Pad", "Pad024")
body27.addObject(pad25)
pad25.Profile = sketch25
pad25.Length = 100
body28 = doc.addObject("PartDesign::Body", "Body027")

# Sketch on YZ plane
sketch26 = doc.addObject("Sketcher::SketchObject", "Sketch025")
body28.addObject(sketch26)
sketch26.AttachmentSupport = (doc.getObject("YZ_Plane027"), [""])
sketch26.MapMode = "FlatFace"
sketch26.AttachmentOffset = App.Placement(App.Vector(0, 0, 24), App.Rotation())
sketch26.addGeometry(Part.Circle(App.Vector(51, 7, 0), App.Vector(0, 0, 1), 5), False)
sketch26.addConstraint([
    Sketcher.Constraint("Diameter", 0, Q("10 mm")),
    Sketcher.Constraint("DistanceX", -1, 1, 0, 3, Q("51 mm")),
    Sketcher.Constraint("DistanceY", -1, 1, 0, 3, Q("7 mm")),
])
pad26 = doc.addObject("PartDesign::Pad", "Pad025")
body28.addObject(pad26)
pad26.Profile = sketch26
pad26.Length = 100
body29 = doc.addObject("PartDesign::Body", "Body028")

# Sketch on YZ plane
sketch27 = doc.addObject("Sketcher::SketchObject", "Sketch026")
body29.addObject(sketch27)
sketch27.AttachmentSupport = (doc.getObject("YZ_Plane028"), [""])
sketch27.MapMode = "FlatFace"
sketch27.AttachmentOffset = App.Placement(App.Vector(0, 0, 24), App.Rotation())
sketch27.addGeometry(Part.Circle(App.Vector(23, -5, 0), App.Vector(0, 0, 1), 5), False)
sketch27.addConstraint([
    Sketcher.Constraint("Diameter", 0, Q("10 mm")),
    Sketcher.Constraint("DistanceX", -1, 1, 0, 3, Q("23 mm")),
    Sketcher.Constraint("DistanceY", 0, 3, -1, 1, Q("5 mm")),
])
pad27 = doc.addObject("PartDesign::Pad", "Pad026")
body29.addObject(pad27)
pad27.Profile = sketch27
pad27.Length = 100
body30 = doc.addObject("PartDesign::Body", "Body029")

# Sketch on YZ plane
sketch28 = doc.addObject("Sketcher::SketchObject", "Sketch027")
body30.addObject(sketch28)
sketch28.AttachmentSupport = (doc.getObject("YZ_Plane029"), [""])
sketch28.MapMode = "FlatFace"
sketch28.AttachmentOffset = App.Placement(App.Vector(0, 0, 24), App.Rotation())
sketch28.addGeometry(Part.Circle(App.Vector(-51, 7, 0), App.Vector(0, 0, 1), 5), False)
sketch28.addConstraint([
    Sketcher.Constraint("Diameter", 0, Q("10 mm")),
    Sketcher.Constraint("DistanceX", 0, 3, -1, 1, Q("51 mm")),
    Sketcher.Constraint("DistanceY", -1, 1, 0, 3, Q("7 mm")),
])
pad28 = doc.addObject("PartDesign::Pad", "Pad027")
body30.addObject(pad28)
pad28.Profile = sketch28
pad28.Length = 100
body31 = doc.addObject("PartDesign::Body", "Body030")
body31.AllowCompound = True

# Sketch on YZ plane
sketch29 = doc.addObject("Sketcher::SketchObject", "Sketch028")
body31.addObject(sketch29)
sketch29.AttachmentSupport = (doc.getObject("YZ_Plane030"), [""])
sketch29.MapMode = "FlatFace"
sketch29.AttachmentOffset = App.Placement(App.Vector(0, 0, 24), App.Rotation())
sketch29.addGeometry(Part.Circle(App.Vector(51, 25, 0), App.Vector(0, 0, 1), 5), False)
sketch29.addConstraint([
    Sketcher.Constraint("Diameter", 0, Q("10 mm")),
    Sketcher.Constraint("DistanceX", -1, 1, 0, 3, Q("51 mm")),
    Sketcher.Constraint("DistanceY", -1, 1, 0, 3, Q("25 mm")),
])
pad29 = doc.addObject("PartDesign::Pad", "Pad028")
body31.addObject(pad29)
pad29.Profile = sketch29
pad29.Length = 100
doc.recompute()

boolean22 = doc.addObject("PartDesign::Boolean", "Boolean021")
body31.addObject(boolean22)
boolean22.Type = "Fuse"
boolean22.addObjects([body24])
doc.recompute()

boolean23 = doc.addObject("PartDesign::Boolean", "Boolean022")
body31.addObject(boolean23)
boolean23.Type = "Fuse"
boolean23.addObjects([body25])
doc.recompute()

boolean24 = doc.addObject("PartDesign::Boolean", "Boolean023")
body31.addObject(boolean24)
boolean24.Type = "Fuse"
boolean24.addObjects([body26])
doc.recompute()

boolean25 = doc.addObject("PartDesign::Boolean", "Boolean024")
body31.addObject(boolean25)
boolean25.Type = "Fuse"
boolean25.addObjects([body27])
doc.recompute()

boolean26 = doc.addObject("PartDesign::Boolean", "Boolean025")
body31.addObject(boolean26)
boolean26.Type = "Fuse"
boolean26.addObjects([body28])
doc.recompute()

boolean27 = doc.addObject("PartDesign::Boolean", "Boolean026")
body31.addObject(boolean27)
boolean27.Type = "Fuse"
boolean27.addObjects([body29])
doc.recompute()

boolean28 = doc.addObject("PartDesign::Boolean", "Boolean027")
body31.addObject(boolean28)
boolean28.Type = "Fuse"
boolean28.addObjects([body30])
body32 = doc.addObject("PartDesign::Body", "Body031")
body32.AllowCompound = True
doc.recompute()

body31.Placement = App.Placement(App.Vector(32, 0, 0), App.Rotation(App.Vector(0, 0, 1), 0))
boolean29 = doc.addObject("PartDesign::Boolean", "Boolean028")
body32.addObject(boolean29)
boolean29.Type = "Fuse"
boolean29.addObjects([body31])
body33 = doc.addObject("PartDesign::Body", "Body032")

# Sketch on XY plane
sketch30 = doc.addObject("Sketcher::SketchObject", "Sketch029")
body33.addObject(sketch30)
sketch30.AttachmentSupport = (doc.getObject("XY_Plane032"), [""])
sketch30.MapMode = "FlatFace"
sketch30.AttachmentOffset = App.Placement(App.Vector(0, 0, 7), App.Rotation())
add_polygon(sketch30, [(97, 79), (97, -29), (107, -29), (107, 79)])  # lines 0-3
sketch30.addConstraint([
    Sketcher.Constraint("Vertical", 0),
    Sketcher.Constraint("Horizontal", 1),
    Sketcher.Constraint("Vertical", 2),
    Sketcher.Constraint("Horizontal", 3),
    Sketcher.Constraint("DistanceX", 1, 1, 1, 2, Q("10 mm")),
    Sketcher.Constraint("DistanceY", 0, 2, 0, 1, Q("108 mm")),
    Sketcher.Constraint("DistanceX", -1, 1, 0, 2, Q("97 mm")),
    Sketcher.Constraint("DistanceY", 0, 2, -1, 1, Q("29 mm")),
])
pad30 = doc.addObject("PartDesign::Pad", "Pad029")
body33.addObject(pad30)
pad30.Profile = sketch30
pad30.Length = 20
doc.recompute()

boolean30 = doc.addObject("PartDesign::Boolean", "Boolean029")
body33.addObject(boolean30)
boolean30.Type = "Cut"
boolean30.addObjects([body32])
doc.recompute()

boolean31 = doc.addObject("PartDesign::Boolean", "Boolean030")
body33.addObject(boolean31)
boolean31.Type = "Cut"
boolean31.addObjects([body23])
doc.recompute()

boolean32 = doc.addObject("PartDesign::Boolean", "Boolean031")
body33.addObject(boolean32)
boolean32.Type = "Cut"
boolean32.addObjects([body15])
body34 = doc.addObject("PartDesign::Body", "Body033")
doc.recompute()

body33.Placement = App.Placement(App.Vector(0, 0, 0), App.Rotation(App.Vector(1, 0, 0), 90))
boolean33 = doc.addObject("PartDesign::Boolean", "Boolean032")
body34.addObject(boolean33)
boolean33.Type = "Fuse"
boolean33.addObjects([body33])
body35 = doc.addObject("PartDesign::Body", "Body034")
doc.recompute()

body34.Placement = App.Placement(App.Vector(17, 144, -56), App.Rotation(App.Vector(0, 0, 1), 270))
boolean34 = doc.addObject("PartDesign::Boolean", "Boolean033")
body35.addObject(boolean34)
boolean34.Type = "Fuse"
boolean34.addObjects([body34])

doc.recompute()
